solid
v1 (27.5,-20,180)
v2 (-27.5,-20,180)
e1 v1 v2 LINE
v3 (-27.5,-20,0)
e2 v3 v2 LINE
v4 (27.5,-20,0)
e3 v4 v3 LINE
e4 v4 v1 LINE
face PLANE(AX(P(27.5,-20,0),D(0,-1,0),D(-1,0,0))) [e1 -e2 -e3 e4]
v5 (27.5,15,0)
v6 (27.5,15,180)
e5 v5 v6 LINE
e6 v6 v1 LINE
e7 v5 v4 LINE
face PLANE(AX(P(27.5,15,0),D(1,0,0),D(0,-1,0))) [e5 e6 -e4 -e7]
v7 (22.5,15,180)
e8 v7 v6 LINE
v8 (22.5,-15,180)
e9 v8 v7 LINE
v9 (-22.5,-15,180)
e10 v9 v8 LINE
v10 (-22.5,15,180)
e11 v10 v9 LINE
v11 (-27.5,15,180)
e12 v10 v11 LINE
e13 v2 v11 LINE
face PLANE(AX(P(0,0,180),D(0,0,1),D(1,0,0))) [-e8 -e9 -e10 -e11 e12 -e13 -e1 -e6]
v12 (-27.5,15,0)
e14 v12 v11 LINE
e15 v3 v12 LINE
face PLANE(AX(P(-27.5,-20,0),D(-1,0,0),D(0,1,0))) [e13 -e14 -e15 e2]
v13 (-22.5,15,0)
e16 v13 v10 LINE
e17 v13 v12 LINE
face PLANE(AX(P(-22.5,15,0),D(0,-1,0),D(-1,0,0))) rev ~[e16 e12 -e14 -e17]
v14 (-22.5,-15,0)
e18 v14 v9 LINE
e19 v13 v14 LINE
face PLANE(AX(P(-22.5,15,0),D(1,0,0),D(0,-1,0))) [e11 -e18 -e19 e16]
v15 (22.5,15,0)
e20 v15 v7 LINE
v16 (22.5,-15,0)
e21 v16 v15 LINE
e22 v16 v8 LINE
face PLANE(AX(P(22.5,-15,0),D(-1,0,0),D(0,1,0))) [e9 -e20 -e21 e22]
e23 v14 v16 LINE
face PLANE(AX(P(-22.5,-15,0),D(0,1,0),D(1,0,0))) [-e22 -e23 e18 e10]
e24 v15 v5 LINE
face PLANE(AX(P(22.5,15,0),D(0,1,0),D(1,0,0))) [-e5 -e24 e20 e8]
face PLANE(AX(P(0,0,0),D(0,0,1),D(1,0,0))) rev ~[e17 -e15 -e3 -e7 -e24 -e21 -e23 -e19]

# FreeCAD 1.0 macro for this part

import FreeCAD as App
import Part
import Sketcher
Q = App.Units.Quantity

doc = App.newDocument("Part")
body = doc.addObject("PartDesign::Body", "Body")

# Sketch on XY plane
sketch1 = body.newObject("Sketcher::SketchObject", "Sketch")
sketch1.AttachmentSupport = (doc.getObject("XY_Plane"), [""])
sketch1.MapMode = "FlatFace"
sketch1.addGeometry(Part.LineSegment(App.Vector(-22.5, -15, 0), App.Vector(-22.5, 15, 0)), False)
sketch1.addGeometry(Part.LineSegment(App.Vector(-22.5, 15, 0), App.Vector(-27.5, 15, 0)), False)
sketch1.addGeometry(Part.LineSegment(App.Vector(-27.5, 15, 0), App.Vector(-27.5, -20, 0)), False)
sketch1.addGeometry(Part.LineSegment(App.Vector(-27.5, -20, 0), App.Vector(27.5, -20, 0)), False)
sketch1.addGeometry(Part.LineSegment(App.Vector(27.5, -20, 0), App.Vector(27.5, 15, 0)), False)
sketch1.addGeometry(Part.LineSegment(App.Vector(27.5, 15, 0), App.Vector(22.5, 15, 0)), False)
sketch1.addGeometry(Part.LineSegment(App.Vector(22.5, 15, 0), App.Vector(22.5, -15, 0)), False)
sketch1.addGeometry(Part.LineSegment(App.Vector(22.5, -15, 0), App.Vector(-22.5, -15, 0)), False)
sketch1.addConstraint(Sketcher.Constraint("Coincident", 0, 2, 1, 1))
sketch1.addConstraint(Sketcher.Constraint("Coincident", 1, 2, 2, 1))
sketch1.addConstraint(Sketcher.Constraint("Coincident", 2, 2, 3, 1))
sketch1.addConstraint(Sketcher.Constraint("Coincident", 3, 2, 4, 1))
sketch1.addConstraint(Sketcher.Constraint("Coincident", 4, 2, 5, 1))
sketch1.addConstraint(Sketcher.Constraint("Coincident", 5, 2, 6, 1))
sketch1.addConstraint(Sketcher.Constraint("Coincident", 6, 2, 7, 1))
sketch1.addConstraint(Sketcher.Constraint("Coincident", 7, 2, 0, 1))
sketch1.addConstraint(Sketcher.Constraint("Vertical", 0))
sketch1.addConstraint(Sketcher.Constraint("Horizontal", 1))
sketch1.addConstraint(Sketcher.Constraint("Vertical", 2))
sketch1.addConstraint(Sketcher.Constraint("Horizontal", 3))
sketch1.addConstraint(Sketcher.Constraint("Vertical", 4))
sketch1.addConstraint(Sketcher.Constraint("Horizontal", 5))
sketch1.addConstraint(Sketcher.Constraint("Vertical", 6))
sketch1.addConstraint(Sketcher.Constraint("Horizontal", 7))
sketch1.addConstraint(Sketcher.Constraint("Symmetric", 0, 2, 6, 2, -1, 1))
sketch1.addConstraint(Sketcher.Constraint("Symmetric", 1, 2, 4, 2, -2))
sketch1.addConstraint(Sketcher.Constraint("DistanceX", 1, 2, 1, 1, Q("5 mm")))
sketch1.addConstraint(Sketcher.Constraint("DistanceX", 7, 2, 7, 1, Q("45 mm")))
sketch1.addConstraint(Sketcher.Constraint("DistanceY", 0, 1, 0, 2, Q("30 mm")))
sketch1.addConstraint(Sketcher.Constraint("DistanceY", 3, 2, 6, 2, Q("5 mm")))
pad1 = body.newObject("PartDesign::Pad", "Pad")
pad1.Profile = sketch1
pad1.Length = 180

doc.recompute()
